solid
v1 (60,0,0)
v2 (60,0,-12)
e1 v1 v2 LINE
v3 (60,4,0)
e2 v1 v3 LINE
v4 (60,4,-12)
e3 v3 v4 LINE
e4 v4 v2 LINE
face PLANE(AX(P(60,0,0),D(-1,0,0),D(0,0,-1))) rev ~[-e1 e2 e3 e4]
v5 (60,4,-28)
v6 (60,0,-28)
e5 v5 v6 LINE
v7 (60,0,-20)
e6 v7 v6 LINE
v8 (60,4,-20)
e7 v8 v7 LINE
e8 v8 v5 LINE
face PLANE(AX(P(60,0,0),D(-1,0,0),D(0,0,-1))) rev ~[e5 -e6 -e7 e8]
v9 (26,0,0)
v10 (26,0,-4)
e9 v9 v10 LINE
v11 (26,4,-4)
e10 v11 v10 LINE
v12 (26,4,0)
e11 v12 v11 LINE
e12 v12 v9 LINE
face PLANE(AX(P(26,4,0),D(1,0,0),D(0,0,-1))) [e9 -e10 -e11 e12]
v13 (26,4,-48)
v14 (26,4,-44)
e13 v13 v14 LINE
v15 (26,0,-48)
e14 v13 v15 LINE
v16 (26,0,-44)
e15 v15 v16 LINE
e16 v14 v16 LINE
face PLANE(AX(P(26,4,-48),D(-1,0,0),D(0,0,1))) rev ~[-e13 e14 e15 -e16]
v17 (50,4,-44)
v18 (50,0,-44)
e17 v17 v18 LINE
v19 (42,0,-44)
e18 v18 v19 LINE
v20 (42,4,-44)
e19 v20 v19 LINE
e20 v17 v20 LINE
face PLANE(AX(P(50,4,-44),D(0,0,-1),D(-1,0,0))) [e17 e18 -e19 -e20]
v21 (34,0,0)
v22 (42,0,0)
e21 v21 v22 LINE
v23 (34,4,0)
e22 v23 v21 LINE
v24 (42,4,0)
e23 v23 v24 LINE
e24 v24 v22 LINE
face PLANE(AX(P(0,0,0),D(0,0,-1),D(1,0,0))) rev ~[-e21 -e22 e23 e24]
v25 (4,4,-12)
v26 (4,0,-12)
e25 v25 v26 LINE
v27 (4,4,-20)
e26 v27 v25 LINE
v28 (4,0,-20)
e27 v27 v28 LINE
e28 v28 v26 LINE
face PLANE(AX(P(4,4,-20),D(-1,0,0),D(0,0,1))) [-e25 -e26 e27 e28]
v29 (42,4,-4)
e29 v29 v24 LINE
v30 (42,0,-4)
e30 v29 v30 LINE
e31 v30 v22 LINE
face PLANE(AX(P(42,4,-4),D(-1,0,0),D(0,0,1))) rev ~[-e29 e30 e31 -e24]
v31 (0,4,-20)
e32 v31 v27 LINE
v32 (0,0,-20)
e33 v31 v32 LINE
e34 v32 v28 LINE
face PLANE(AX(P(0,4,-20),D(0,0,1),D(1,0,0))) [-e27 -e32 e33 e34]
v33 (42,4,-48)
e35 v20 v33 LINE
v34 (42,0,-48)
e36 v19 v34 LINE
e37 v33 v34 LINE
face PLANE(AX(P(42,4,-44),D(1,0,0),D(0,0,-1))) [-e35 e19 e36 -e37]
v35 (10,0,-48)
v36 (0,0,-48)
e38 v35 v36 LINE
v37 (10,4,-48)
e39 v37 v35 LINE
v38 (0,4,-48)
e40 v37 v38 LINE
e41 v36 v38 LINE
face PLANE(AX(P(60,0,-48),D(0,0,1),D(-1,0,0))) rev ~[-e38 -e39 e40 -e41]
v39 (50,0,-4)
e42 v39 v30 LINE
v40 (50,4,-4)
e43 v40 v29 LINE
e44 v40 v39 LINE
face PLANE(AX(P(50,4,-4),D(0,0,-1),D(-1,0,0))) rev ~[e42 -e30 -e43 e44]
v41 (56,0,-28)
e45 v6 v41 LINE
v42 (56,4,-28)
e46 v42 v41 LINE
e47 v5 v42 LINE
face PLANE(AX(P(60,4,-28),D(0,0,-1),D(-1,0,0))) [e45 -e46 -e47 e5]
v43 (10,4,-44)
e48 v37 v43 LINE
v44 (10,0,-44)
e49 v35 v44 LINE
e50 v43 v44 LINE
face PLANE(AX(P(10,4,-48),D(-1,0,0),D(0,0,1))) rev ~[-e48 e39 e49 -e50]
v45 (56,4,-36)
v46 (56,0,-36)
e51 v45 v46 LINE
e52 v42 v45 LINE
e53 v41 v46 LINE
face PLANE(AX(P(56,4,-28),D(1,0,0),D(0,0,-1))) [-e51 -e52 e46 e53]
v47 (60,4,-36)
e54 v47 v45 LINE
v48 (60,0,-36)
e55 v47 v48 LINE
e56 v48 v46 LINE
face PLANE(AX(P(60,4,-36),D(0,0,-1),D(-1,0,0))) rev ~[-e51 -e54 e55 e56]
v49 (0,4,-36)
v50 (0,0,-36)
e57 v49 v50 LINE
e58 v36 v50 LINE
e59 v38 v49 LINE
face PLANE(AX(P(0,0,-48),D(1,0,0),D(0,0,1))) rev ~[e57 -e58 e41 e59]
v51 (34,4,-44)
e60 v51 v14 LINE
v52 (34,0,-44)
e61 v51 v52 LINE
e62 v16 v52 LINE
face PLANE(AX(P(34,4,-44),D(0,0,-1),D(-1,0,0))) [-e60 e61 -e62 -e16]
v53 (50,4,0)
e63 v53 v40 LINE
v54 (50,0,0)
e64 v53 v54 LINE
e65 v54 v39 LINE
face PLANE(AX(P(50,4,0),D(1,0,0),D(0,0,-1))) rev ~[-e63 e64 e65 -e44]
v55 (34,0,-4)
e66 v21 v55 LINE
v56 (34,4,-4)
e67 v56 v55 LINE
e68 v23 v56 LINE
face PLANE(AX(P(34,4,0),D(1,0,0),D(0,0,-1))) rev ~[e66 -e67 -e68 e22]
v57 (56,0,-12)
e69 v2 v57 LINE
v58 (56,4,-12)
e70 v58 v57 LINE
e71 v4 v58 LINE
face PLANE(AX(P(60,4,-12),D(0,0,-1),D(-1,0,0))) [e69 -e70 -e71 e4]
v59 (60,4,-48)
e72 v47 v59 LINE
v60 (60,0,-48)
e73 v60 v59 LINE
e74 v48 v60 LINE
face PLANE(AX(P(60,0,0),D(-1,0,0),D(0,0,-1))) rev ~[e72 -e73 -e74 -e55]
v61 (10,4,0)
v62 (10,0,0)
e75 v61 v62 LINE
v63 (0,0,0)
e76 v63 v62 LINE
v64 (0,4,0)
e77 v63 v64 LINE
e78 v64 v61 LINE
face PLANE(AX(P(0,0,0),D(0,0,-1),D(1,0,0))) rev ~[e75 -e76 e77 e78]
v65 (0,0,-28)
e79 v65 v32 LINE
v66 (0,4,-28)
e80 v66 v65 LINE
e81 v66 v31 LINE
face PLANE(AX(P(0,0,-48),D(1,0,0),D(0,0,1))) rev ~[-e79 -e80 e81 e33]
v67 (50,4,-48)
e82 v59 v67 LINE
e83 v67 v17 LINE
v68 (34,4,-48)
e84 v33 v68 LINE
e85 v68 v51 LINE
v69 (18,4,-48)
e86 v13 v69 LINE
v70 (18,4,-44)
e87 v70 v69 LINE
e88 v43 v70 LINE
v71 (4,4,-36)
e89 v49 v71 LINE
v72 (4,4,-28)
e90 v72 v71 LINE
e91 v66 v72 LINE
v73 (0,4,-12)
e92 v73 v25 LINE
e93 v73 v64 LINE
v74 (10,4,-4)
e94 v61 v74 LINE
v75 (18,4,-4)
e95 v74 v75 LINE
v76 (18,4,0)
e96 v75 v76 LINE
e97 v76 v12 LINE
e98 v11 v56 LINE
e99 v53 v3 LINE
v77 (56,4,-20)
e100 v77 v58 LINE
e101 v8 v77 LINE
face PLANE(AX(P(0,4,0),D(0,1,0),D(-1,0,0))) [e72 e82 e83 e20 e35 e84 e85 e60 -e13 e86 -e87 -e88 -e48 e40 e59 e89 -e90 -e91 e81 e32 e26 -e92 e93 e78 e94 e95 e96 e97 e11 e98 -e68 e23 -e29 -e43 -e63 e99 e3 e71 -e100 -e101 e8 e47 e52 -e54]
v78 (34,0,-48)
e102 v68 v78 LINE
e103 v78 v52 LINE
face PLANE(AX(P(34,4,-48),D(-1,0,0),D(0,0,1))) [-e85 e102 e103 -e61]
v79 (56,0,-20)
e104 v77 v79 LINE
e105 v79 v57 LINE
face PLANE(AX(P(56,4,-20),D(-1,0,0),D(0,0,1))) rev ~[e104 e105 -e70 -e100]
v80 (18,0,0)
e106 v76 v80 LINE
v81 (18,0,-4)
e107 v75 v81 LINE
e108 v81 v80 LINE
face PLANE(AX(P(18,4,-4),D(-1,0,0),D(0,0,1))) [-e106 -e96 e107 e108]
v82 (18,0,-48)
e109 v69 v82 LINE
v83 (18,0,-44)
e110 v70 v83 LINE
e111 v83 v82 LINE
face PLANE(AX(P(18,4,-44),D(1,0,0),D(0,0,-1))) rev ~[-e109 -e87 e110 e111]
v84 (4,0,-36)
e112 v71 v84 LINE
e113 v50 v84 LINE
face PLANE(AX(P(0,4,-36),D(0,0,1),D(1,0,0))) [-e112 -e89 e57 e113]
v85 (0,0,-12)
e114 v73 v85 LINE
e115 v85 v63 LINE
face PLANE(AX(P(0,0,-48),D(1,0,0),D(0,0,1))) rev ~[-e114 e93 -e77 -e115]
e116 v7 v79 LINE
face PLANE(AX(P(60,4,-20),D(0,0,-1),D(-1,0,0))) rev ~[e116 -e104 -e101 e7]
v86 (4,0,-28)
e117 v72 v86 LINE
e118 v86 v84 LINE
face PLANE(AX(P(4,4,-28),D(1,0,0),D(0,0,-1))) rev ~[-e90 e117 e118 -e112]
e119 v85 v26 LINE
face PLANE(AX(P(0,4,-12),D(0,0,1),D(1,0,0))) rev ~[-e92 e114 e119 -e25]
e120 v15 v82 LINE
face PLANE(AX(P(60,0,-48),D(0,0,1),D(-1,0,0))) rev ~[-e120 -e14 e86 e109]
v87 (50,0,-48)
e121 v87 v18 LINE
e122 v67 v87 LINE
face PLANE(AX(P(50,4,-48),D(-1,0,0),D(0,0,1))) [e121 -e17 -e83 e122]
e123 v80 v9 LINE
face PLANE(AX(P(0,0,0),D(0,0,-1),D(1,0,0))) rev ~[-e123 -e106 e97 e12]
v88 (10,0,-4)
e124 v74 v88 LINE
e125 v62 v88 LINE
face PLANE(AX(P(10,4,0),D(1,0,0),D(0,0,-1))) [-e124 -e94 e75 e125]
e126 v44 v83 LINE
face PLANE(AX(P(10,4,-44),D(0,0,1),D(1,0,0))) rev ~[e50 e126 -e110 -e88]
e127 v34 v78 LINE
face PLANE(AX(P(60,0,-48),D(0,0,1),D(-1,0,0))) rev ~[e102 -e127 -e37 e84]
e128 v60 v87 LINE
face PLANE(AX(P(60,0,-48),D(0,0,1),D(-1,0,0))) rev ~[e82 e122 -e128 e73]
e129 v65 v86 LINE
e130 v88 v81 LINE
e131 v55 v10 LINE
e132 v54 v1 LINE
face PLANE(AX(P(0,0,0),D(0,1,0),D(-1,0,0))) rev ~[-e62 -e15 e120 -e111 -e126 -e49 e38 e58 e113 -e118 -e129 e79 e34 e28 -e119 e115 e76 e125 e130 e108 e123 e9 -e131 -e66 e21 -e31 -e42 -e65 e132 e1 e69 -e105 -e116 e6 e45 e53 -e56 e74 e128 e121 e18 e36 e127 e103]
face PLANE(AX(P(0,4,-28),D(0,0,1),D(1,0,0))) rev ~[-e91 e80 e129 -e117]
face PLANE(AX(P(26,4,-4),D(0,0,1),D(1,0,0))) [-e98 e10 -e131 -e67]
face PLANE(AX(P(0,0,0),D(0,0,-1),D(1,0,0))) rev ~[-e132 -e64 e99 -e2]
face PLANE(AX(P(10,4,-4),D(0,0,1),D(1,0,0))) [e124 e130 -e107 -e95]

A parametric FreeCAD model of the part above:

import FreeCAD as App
import Part
import Sketcher

V = App.Vector
Q = App.Units.Quantity


def add_polygon(sketch, points):
    """Adds a closed chain of lines whose ends are joined by coincident constraints."""
    first, n = sketch.GeometryCount, len(points)
    for a, b in zip(points, points[1:] + points[:1]):
        sketch.addGeometry(Part.LineSegment(App.Vector(*a, 0), App.Vector(*b, 0)), False)
    for i in range(n):
        sketch.addConstraint(Sketcher.Constraint("Coincident", first + i, 2, first + (i + 1) % n, 1))

doc = App.newDocument("Part")
params = doc.addObject("Spreadsheet::Sheet", "Params")
for row, (alias, value) in enumerate([
    ("sketch1_width", "60 mm"),
    ("sketch1_height", "48 mm"),
    ("pad1_length", "4 mm"),
    ("sketch2_width", "4 mm"),
    ("sketch2_width2", "8 mm"),
    ("pocket1_length", "4 mm"),
], start=1):
    params.set(f"A{row}", alias)
    params.set(f"B{row}", "=" + value)
    params.setAlias(f"B{row}", alias)

body = doc.addObject("PartDesign::Body", "Body")

# Sketch on XZ plane
sketch1 = body.newObject("Sketcher::SketchObject", "Sketch")
sketch1.AttachmentSupport = (doc.getObject("XZ_Plane"), [""])
sketch1.MapMode = "FlatFace"
add_polygon(sketch1, [(0, -48), (0, 0), (60, 0), (60, -48)])  # lines 0-3
sketch1.addConstraint(Sketcher.Constraint("Vertical", 0))
sketch1.addConstraint(Sketcher.Constraint("Horizontal", 1))
sketch1.addConstraint(Sketcher.Constraint("Vertical", 2))
sketch1.addConstraint(Sketcher.Constraint("Horizontal", 3))
sketch1.addConstraint(Sketcher.Constraint("Coincident", 0, 2, -1, 1))
sketch1.addConstraint(Sketcher.Constraint("DistanceX", 1, 1, 1, 2, Q("60 mm")))
sketch1.addConstraint(Sketcher.Constraint("DistanceY", 0, 1, 0, 2, Q("48 mm")))
sketch1.setExpression("Constraints[9]", "Params.sketch1_width")
sketch1.setExpression("Constraints[10]", "Params.sketch1_height")
pad1 = body.newObject("PartDesign::Pad", "Pad")
pad1.Profile = sketch1
pad1.setExpression("Length", "Params.pad1_length")
pad1.Reversed = True

# Sketch on XZ plane
sketch2 = body.newObject("Sketcher::SketchObject", "Sketch001")
sketch2.AttachmentSupport = (doc.getObject("XZ_Plane"), [""])
sketch2.MapMode = "FlatFace"
sketch2.AttachmentOffset = App.Placement(V(0, 0, -4), App.Rotation())
add_polygon(sketch2, [(0, -36), (0, -28), (4, -28), (4, -36)])  # lines 0-3
add_polygon(sketch2, [(18, -48), (10, -48), (10, -44), (18, -44)])  # lines 4-7
add_polygon(sketch2, [(34, -48), (26, -48), (26, -44), (34, -44)])  # lines 8-11
add_polygon(sketch2, [(56, -28), (60, -28), (60, -36), (56, -36)])  # lines 12-15
add_polygon(sketch2, [(50, -44), (50, -48), (42, -48), (42, -44)])  # lines 16-19
add_polygon(sketch2, [(4, -20), (0, -20), (0, -12), (4, -12)])  # lines 20-23
add_polygon(sketch2, [(10, -4), (10, 0), (18, 0), (18, -4)])  # lines 24-27
add_polygon(sketch2, [(26, -4), (26, 0), (34, 0), (34, -4)])  # lines 28-31
add_polygon(sketch2, [(50, -4), (42, -4), (42, 0), (50, 0)])  # lines 32-35
add_polygon(sketch2, [(60, -20), (56, -20), (56, -12), (60, -12)])  # lines 36-39
sketch2.addConstraint(Sketcher.Constraint("Vertical", 0))
sketch2.addConstraint(Sketcher.Constraint("Horizontal", 1))
sketch2.addConstraint(Sketcher.Constraint("Vertical", 2))
sketch2.addConstraint(Sketcher.Constraint("Horizontal", 3))
sketch2.addConstraint(Sketcher.Constraint("Horizontal", 4))
sketch2.addConstraint(Sketcher.Constraint("Vertical", 5))
sketch2.addConstraint(Sketcher.Constraint("Horizontal", 6))
sketch2.addConstraint(Sketcher.Constraint("Vertical", 7))
sketch2.addConstraint(Sketcher.Constraint("Horizontal", 8))
sketch2.addConstraint(Sketcher.Constraint("Vertical", 9))
sketch2.addConstraint(Sketcher.Constraint("Horizontal", 10))
sketch2.addConstraint(Sketcher.Constraint("Vertical", 11))
sketch2.addConstraint(Sketcher.Constraint("Horizontal", 12))
sketch2.addConstraint(Sketcher.Constraint("Vertical", 13))
sketch2.addConstraint(Sketcher.Constraint("Horizontal", 14))
sketch2.addConstraint(Sketcher.Constraint("Vertical", 15))
sketch2.addConstraint(Sketcher.Constraint("Vertical", 16))
sketch2.addConstraint(Sketcher.Constraint("Horizontal", 17))
sketch2.addConstraint(Sketcher.Constraint("Vertical", 18))
sketch2.addConstraint(Sketcher.Constraint("Horizontal", 19))
sketch2.addConstraint(Sketcher.Constraint("Horizontal", 20))
sketch2.addConstraint(Sketcher.Constraint("Vertical", 21))
sketch2.addConstraint(Sketcher.Constraint("Horizontal", 22))
sketch2.addConstraint(Sketcher.Constraint("Vertical", 23))
sketch2.addConstraint(Sketcher.Constraint("Vertical", 24))
sketch2.addConstraint(Sketcher.Constraint("Horizontal", 25))
sketch2.addConstraint(Sketcher.Constraint("Vertical", 26))
sketch2.addConstraint(Sketcher.Constraint("Horizontal", 27))
sketch2.addConstraint(Sketcher.Constraint("Vertical", 28))
sketch2.addConstraint(Sketcher.Constraint("Horizontal", 29))
sketch2.addConstraint(Sketcher.Constraint("Vertical", 30))
sketch2.addConstraint(Sketcher.Constraint("Horizontal", 31))
sketch2.addConstraint(Sketcher.Constraint("Horizontal", 32))
sketch2.addConstraint(Sketcher.Constraint("Vertical", 33))
sketch2.addConstraint(Sketcher.Constraint("Horizontal", 34))
sketch2.addConstraint(Sketcher.Constraint("Vertical", 35))
sketch2.addConstraint(Sketcher.Constraint("Horizontal", 36))
sketch2.addConstraint(Sketcher.Constraint("Vertical", 37))
sketch2.addConstraint(Sketcher.Constraint("Horizontal", 38))
sketch2.addConstraint(Sketcher.Constraint("Vertical", 39))
sketch2.addConstraint(Sketcher.Constraint("PointOnObject", 0, 2, -2))
sketch2.addConstraint(Sketcher.Constraint("PointOnObject", 20, 2, -2))
sketch2.addConstraint(Sketcher.Constraint("PointOnObject", 24, 2, -1))
sketch2.addConstraint(Sketcher.Constraint("PointOnObject", 28, 2, -1))
sketch2.addConstraint(Sketcher.Constraint("PointOnObject", 33, 2, -1))
sketch2.addConstraint(Sketcher.Constraint("Horizontal", 7, 2, 8, 2))
sketch2.addConstraint(Sketcher.Constraint("Horizontal", 6, 2, 9, 2))
sketch2.addConstraint(Sketcher.Constraint("Horizontal", 1, 2, 12, 2))
sketch2.addConstraint(Sketcher.Constraint("Horizontal", 3, 2, 13, 2))
sketch2.addConstraint(Sketcher.Constraint("Horizontal", 11, 2, 16, 2))
sketch2.addConstraint(Sketcher.Constraint("Horizontal", 10, 2, 18, 2))
sketch2.addConstraint(Sketcher.Constraint("Horizontal", 27, 2, 30, 2))
sketch2.addConstraint(Sketcher.Constraint("Horizontal", 31, 2, 32, 2))
sketch2.addConstraint(Sketcher.Constraint("Horizontal", 23, 2, 36, 2))
sketch2.addConstraint(Sketcher.Constraint("Horizontal", 22, 2, 37, 2))
sketch2.addConstraint(Sketcher.Constraint("Vertical", 2, 2, 22, 2))
sketch2.addConstraint(Sketcher.Constraint("Vertical", 5, 2, 24, 2))
sketch2.addConstraint(Sketcher.Constraint("Vertical", 7, 2, 25, 2))
sketch2.addConstraint(Sketcher.Constraint("Vertical", 9, 2, 28, 2))
sketch2.addConstraint(Sketcher.Constraint("Vertical", 11, 2, 29, 2))
sketch2.addConstraint(Sketcher.Constraint("Vertical", 18, 2, 32, 2))
sketch2.addConstraint(Sketcher.Constraint("Vertical", 19, 2, 34, 2))
sketch2.addConstraint(Sketcher.Constraint("Vertical", 15, 2, 36, 2))
sketch2.addConstraint(Sketcher.Constraint("Vertical", 13, 2, 38, 2))
sketch2.addConstraint(Sketcher.Constraint("Equal", 6, 8))
sketch2.addConstraint(Sketcher.Constraint("Equal", 3, 12))
sketch2.addConstraint(Sketcher.Constraint("Equal", 10, 17))
sketch2.addConstraint(Sketcher.Constraint("Equal", 34, 0))
sketch2.addConstraint(Sketcher.Constraint("Equal", 38, 5))
sketch2.addConstraint(Sketcher.Constraint("Equal", 15, 21))
sketch2.addConstraint(Sketcher.Constraint("Equal", 18, 24))
sketch2.addConstraint(Sketcher.Constraint("DistanceX", 1, 1, 1, 2, Q("4 mm")))
sketch2.addConstraint(Sketcher.Constraint("DistanceX", 4, 2, 4, 1, Q("8 mm")))
sketch2.addConstraint(Sketcher.Constraint("DistanceY", 5, 2, 2, 2, Q("8 mm")))
sketch2.addConstraint(Sketcher.Constraint("DistanceX", 7, 2, 8, 2, Q("8 mm")))
sketch2.addConstraint(Sketcher.Constraint("DistanceX", 11, 2, 17, 2, Q("8 mm")))
sketch2.addConstraint(Sketcher.Constraint("DistanceY", 0, 2, 20, 2, Q("8 mm")))
sketch2.addConstraint(Sketcher.Constraint("DistanceY", 22, 2, 26, 2, Q("8 mm")))
sketch2.addConstraint(Sketcher.Constraint("DistanceX", -1, 1, 4, 2, Q("10 mm")))
sketch2.addConstraint(Sketcher.Constraint("DistanceX", -1, 1, 12, 2, Q("60 mm")))
sketch2.setExpression("Constraints[111]", "Params.sketch2_width")
sketch2.setExpression("Constraints[112]", "Params.sketch2_width2")
pocket1 = body.newObject("PartDesign::Pocket", "Pocket")
pocket1.Profile = sketch2
pocket1.setExpression("Length", "Params.pocket1_length")
pocket1.Reversed = True

doc.recompute()
